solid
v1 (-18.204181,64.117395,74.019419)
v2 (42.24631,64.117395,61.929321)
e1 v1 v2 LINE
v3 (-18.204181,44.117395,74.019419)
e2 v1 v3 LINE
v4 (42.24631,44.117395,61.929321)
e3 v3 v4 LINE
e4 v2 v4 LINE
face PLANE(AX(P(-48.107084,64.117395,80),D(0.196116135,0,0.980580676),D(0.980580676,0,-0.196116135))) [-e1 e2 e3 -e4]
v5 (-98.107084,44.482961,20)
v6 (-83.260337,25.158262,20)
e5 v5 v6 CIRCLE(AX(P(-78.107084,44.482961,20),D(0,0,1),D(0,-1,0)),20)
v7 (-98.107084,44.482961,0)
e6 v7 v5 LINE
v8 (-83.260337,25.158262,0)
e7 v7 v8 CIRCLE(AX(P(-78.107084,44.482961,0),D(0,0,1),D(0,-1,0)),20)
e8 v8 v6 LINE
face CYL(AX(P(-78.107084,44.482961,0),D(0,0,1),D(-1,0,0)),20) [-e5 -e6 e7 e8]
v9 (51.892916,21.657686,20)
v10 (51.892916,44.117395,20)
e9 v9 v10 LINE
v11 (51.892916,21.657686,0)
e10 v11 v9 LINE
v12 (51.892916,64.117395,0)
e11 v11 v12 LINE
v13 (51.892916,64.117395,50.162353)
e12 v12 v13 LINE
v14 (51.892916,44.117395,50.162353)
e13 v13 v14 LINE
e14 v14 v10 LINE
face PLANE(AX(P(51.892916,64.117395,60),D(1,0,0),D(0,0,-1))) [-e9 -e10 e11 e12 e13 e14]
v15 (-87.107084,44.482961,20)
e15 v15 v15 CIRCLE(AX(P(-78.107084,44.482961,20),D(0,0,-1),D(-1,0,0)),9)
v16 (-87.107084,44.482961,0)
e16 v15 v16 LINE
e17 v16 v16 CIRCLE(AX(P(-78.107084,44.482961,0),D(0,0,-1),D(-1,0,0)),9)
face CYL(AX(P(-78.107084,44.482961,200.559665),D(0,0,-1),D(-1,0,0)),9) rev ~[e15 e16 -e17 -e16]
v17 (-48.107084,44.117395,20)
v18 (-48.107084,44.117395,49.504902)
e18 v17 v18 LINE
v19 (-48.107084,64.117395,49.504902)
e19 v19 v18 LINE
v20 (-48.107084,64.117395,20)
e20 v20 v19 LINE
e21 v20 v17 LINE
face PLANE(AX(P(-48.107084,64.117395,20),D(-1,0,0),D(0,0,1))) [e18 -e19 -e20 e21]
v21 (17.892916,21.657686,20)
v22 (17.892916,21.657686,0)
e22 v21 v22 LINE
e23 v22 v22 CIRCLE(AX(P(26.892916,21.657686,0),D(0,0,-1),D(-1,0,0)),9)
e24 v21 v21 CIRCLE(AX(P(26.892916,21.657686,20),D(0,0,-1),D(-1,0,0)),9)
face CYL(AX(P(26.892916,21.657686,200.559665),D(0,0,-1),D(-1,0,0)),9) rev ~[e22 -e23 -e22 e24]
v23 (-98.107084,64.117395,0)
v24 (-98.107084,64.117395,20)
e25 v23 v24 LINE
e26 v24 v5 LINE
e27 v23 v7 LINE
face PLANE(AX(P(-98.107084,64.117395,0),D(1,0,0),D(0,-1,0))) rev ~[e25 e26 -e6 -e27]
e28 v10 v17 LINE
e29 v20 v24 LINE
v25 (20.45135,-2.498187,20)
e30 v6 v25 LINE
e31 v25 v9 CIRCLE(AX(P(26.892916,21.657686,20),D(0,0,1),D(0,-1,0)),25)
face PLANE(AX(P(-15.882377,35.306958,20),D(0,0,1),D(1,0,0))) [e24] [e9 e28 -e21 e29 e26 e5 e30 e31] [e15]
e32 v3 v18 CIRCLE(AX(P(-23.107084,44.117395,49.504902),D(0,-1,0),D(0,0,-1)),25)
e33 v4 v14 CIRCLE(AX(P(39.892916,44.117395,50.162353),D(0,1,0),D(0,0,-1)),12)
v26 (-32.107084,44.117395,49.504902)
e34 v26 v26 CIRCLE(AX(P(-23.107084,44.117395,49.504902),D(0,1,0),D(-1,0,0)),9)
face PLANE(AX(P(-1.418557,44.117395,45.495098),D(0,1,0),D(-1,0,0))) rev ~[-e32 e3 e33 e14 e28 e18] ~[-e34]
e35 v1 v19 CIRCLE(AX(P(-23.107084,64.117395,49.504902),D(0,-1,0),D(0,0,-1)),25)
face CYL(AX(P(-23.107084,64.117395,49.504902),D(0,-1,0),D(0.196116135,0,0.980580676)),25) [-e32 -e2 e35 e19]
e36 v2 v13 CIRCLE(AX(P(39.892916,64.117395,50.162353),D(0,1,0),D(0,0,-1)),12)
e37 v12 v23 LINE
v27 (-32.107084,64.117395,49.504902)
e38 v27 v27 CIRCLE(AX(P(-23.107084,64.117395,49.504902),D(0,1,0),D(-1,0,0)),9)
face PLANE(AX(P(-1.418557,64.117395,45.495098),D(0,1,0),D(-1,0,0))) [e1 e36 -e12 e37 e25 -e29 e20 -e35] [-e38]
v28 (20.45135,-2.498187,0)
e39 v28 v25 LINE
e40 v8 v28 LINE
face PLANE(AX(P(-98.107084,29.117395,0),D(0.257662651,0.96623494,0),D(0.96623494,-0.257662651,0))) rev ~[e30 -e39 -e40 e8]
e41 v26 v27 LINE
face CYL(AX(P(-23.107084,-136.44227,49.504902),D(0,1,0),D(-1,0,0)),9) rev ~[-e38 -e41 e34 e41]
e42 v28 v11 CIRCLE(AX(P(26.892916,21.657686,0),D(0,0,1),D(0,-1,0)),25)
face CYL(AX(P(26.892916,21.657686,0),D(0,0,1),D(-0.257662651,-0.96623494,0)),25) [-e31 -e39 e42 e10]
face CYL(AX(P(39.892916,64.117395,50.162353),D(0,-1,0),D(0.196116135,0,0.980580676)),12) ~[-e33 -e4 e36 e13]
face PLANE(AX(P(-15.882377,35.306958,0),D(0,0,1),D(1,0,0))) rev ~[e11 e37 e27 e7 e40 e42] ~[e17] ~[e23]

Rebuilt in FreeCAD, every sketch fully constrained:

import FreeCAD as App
import Part
import Sketcher
Q = App.Units.Quantity


def edges_at(feature, points):
    """Names of the edges that pass closest to the given points."""
    edges = feature.Shape.Edges
    near = lambda p: min(range(len(edges)), key=lambda i: edges[i].distToShape(Part.Vertex(*p))[0])
    return sorted({f"Edge{near(p) + 1}" for p in points})


def add_polygon(sketch, points):
    """Adds a closed chain of lines whose ends are joined by coincident constraints."""
    first, n = sketch.GeometryCount, len(points)
    for a, b in zip(points, points[1:] + points[:1]):
        sketch.addGeometry(Part.LineSegment(App.Vector(*a, 0), App.Vector(*b, 0)), False)
    for i in range(n):
        sketch.addConstraint(Sketcher.Constraint("Coincident", first + i, 2, first + (i + 1) % n, 1))

doc = App.newDocument("Part")
params = doc.addObject("Spreadsheet::Sheet", "Params")
for row, (alias, value) in enumerate([
    ("sketch1_width", "150 mm"),
    ("sketch1_height", "35 mm"),
    ("sketch1_height2", "75 mm"),
    ("pad1_length", "20 mm"),
    ("sketch2_width", "100 mm"),
    ("sketch2_height", "40 mm"),
    ("sketch2_height2", "60 mm"),
    ("pad2_length", "20 mm"),
    ("fillet_radius", "20 mm"),
    ("fillet2_radius", "25 mm"),
    ("fillet3_radius", "25 mm"),
    ("fillet4_radius", "12 mm"),
    ("sketch3_diameter", "18 mm"),
    ("hole_diameter", "18 mm"),
    ("sketch4_diameter", "18 mm"),
    ("hole2_diameter", "18 mm"),
    ("sketch5_diameter", "18 mm"),
    ("hole3_diameter", "18 mm"),
], start=1):
    params.set(f"A{row}", alias)
    params.set(f"B{row}", "=" + value)
    params.setAlias(f"B{row}", alias)

body = doc.addObject("PartDesign::Body", "Body")

sketch1 = body.newObject("Sketcher::SketchObject", "Sketch")
sketch1.AttachmentSupport = (doc.getObject("XY_Plane"), [""])
sketch1.MapMode = "FlatFace"
add_polygon(sketch1, [(51.892916, 64.117395), (-98.107084, 64.117395), (-98.107084, 29.117395), (51.892916, -10.882605)])
sketch1.addConstraint([
    Sketcher.Constraint("Horizontal", 0),
    Sketcher.Constraint("Vertical", 1),
    Sketcher.Constraint("Vertical", 3),
    Sketcher.Constraint("DistanceX", 0, 2, 0, 1, Q("150 mm")),
    Sketcher.Constraint("DistanceY", 1, 2, 1, 1, Q("35 mm")),
    Sketcher.Constraint("DistanceY", 3, 1, 3, 2, Q("75 mm")),
    Sketcher.Constraint("DistanceX", 0, 2, -1, 1, Q("98.107084 mm")),
    Sketcher.Constraint("DistanceY", -1, 1, 0, 2, Q("64.117395 mm")),
])
sketch1.setExpression("Constraints[7]", "Params.sketch1_width")
sketch1.setExpression("Constraints[8]", "Params.sketch1_height")
sketch1.setExpression("Constraints[9]", "Params.sketch1_height2")
pad1 = body.newObject("PartDesign::Pad", "Pad")
pad1.Profile = sketch1
pad1.setExpression("Length", "Params.pad1_length")

sketch2 = body.newObject("Sketcher::SketchObject", "Sketch001")
sketch2.AttachmentSupport = (doc.getObject("XZ_Plane"), [""])
sketch2.MapMode = "FlatFace"
sketch2.AttachmentOffset = App.Placement(App.Vector(0, 0, -64.117395), App.Rotation())
add_polygon(sketch2, [(51.892916, 60), (51.892916, 20), (-48.107084, 20), (-48.107084, 80)])
sketch2.addConstraint([
    Sketcher.Constraint("Vertical", 0),
    Sketcher.Constraint("Horizontal", 1),
    Sketcher.Constraint("Vertical", 2),
    Sketcher.Constraint("DistanceX", 1, 2, 1, 1, Q("100 mm")),
    Sketcher.Constraint("DistanceY", 0, 2, 0, 1, Q("40 mm")),
    Sketcher.Constraint("DistanceY", 2, 1, 2, 2, Q("60 mm")),
    Sketcher.Constraint("DistanceY", -1, 1, 0, 2, Q("20 mm")),
    Sketcher.Constraint("DistanceX", -1, 1, 0, 2, Q("51.892916 mm")),
])
sketch2.setExpression("Constraints[7]", "Params.sketch2_width")
sketch2.setExpression("Constraints[8]", "Params.sketch2_height")
sketch2.setExpression("Constraints[9]", "Params.sketch2_height2")
pad2 = body.newObject("PartDesign::Pad", "Pad001")
pad2.Profile = sketch2
pad2.setExpression("Length", "Params.pad2_length")
doc.recompute()

fillet = body.newObject("PartDesign::Fillet", "Fillet")
fillet.Base = (pad2, edges_at(pad2, [(-98.107, 29.117, 10)]))
fillet.setExpression("Radius", "Params.fillet_radius")
doc.recompute()

fillet2 = body.newObject("PartDesign::Fillet", "Fillet001")
fillet2.Base = (fillet, edges_at(fillet, [(51.893, -10.883, 10)]))
fillet2.setExpression("Radius", "Params.fillet2_radius")
doc.recompute()

fillet3 = body.newObject("PartDesign::Fillet", "Fillet002")
fillet3.Base = (fillet2, edges_at(fillet2, [(-48.107, 54.117, 80)]))
fillet3.setExpression("Radius", "Params.fillet3_radius")
doc.recompute()

fillet4 = body.newObject("PartDesign::Fillet", "Fillet003")
fillet4.Base = (fillet3, edges_at(fillet3, [(51.893, 54.117, 60)]))
fillet4.setExpression("Radius", "Params.fillet4_radius")

sketch3 = body.newObject("Sketcher::SketchObject", "Sketch002")
sketch3.AttachmentSupport = (doc.getObject("XZ_Plane"), [""])
sketch3.MapMode = "FlatFace"
sketch3.AttachmentOffset = App.Placement(App.Vector(0, 0, -44.117395), App.Rotation())
sketch3.addGeometry(Part.Circle(App.Vector(-23.107084, 49.504902, 0), App.Vector(0, 0, 1), 9), False)
sketch3.addConstraint([
    Sketcher.Constraint("Diameter", 0, Q("18 mm")),
    Sketcher.Constraint("DistanceX", 0, 3, -1, 1, Q("23.107084 mm")),
    Sketcher.Constraint("DistanceY", -1, 1, 0, 3, Q("49.504902 mm")),
])
sketch3.setExpression("Constraints[0]", "Params.sketch3_diameter")
doc.recompute()
hole = body.newObject("PartDesign::Hole", "Hole")
hole.Profile = sketch3
hole.ThreadType = "None"
hole.setExpression("Diameter", "Params.hole_diameter")
hole.DepthType = "ThroughAll"

sketch4 = body.newObject("Sketcher::SketchObject", "Sketch003")
sketch4.AttachmentSupport = (doc.getObject("XY_Plane"), [""])
sketch4.MapMode = "FlatFace"
sketch4.AttachmentOffset = App.Placement(App.Vector(0, 0, 20), App.Rotation())
sketch4.addGeometry(Part.Circle(App.Vector(-78.107084, 44.482961, 0), App.Vector(0, 0, 1), 9), False)
sketch4.addConstraint([
    Sketcher.Constraint("Diameter", 0, Q("18 mm")),
    Sketcher.Constraint("DistanceY", -1, 1, 0, 3, Q("44.482961 mm")),
    Sketcher.Constraint("DistanceX", 0, 3, -1, 1, Q("78.107084 mm")),
])
sketch4.setExpression("Constraints[0]", "Params.sketch4_diameter")
doc.recompute()
hole2 = body.newObject("PartDesign::Hole", "Hole001")
hole2.Profile = sketch4
hole2.ThreadType = "None"
hole2.setExpression("Diameter", "Params.hole2_diameter")
hole2.DepthType = "ThroughAll"

sketch5 = body.newObject("Sketcher::SketchObject", "Sketch004")
sketch5.AttachmentSupport = (doc.getObject("XY_Plane"), [""])
sketch5.MapMode = "FlatFace"
sketch5.AttachmentOffset = App.Placement(App.Vector(0, 0, 20), App.Rotation())
sketch5.addGeometry(Part.Circle(App.Vector(26.892916, 21.657686, 0), App.Vector(0, 0, 1), 9), False)
sketch5.addConstraint([
    Sketcher.Constraint("Diameter", 0, Q("18 mm")),
    Sketcher.Constraint("DistanceX", -1, 1, 0, 3, Q("26.892916 mm")),
    Sketcher.Constraint("DistanceY", -1, 1, 0, 3, Q("21.657686 mm")),
])
sketch5.setExpression("Constraints[0]", "Params.sketch5_diameter")
doc.recompute()
hole3 = body.newObject("PartDesign::Hole", "Hole002")
hole3.Profile = sketch5
hole3.ThreadType = "None"
hole3.setExpression("Diameter", "Params.hole3_diameter")
hole3.DepthType = "ThroughAll"

doc.recompute()
